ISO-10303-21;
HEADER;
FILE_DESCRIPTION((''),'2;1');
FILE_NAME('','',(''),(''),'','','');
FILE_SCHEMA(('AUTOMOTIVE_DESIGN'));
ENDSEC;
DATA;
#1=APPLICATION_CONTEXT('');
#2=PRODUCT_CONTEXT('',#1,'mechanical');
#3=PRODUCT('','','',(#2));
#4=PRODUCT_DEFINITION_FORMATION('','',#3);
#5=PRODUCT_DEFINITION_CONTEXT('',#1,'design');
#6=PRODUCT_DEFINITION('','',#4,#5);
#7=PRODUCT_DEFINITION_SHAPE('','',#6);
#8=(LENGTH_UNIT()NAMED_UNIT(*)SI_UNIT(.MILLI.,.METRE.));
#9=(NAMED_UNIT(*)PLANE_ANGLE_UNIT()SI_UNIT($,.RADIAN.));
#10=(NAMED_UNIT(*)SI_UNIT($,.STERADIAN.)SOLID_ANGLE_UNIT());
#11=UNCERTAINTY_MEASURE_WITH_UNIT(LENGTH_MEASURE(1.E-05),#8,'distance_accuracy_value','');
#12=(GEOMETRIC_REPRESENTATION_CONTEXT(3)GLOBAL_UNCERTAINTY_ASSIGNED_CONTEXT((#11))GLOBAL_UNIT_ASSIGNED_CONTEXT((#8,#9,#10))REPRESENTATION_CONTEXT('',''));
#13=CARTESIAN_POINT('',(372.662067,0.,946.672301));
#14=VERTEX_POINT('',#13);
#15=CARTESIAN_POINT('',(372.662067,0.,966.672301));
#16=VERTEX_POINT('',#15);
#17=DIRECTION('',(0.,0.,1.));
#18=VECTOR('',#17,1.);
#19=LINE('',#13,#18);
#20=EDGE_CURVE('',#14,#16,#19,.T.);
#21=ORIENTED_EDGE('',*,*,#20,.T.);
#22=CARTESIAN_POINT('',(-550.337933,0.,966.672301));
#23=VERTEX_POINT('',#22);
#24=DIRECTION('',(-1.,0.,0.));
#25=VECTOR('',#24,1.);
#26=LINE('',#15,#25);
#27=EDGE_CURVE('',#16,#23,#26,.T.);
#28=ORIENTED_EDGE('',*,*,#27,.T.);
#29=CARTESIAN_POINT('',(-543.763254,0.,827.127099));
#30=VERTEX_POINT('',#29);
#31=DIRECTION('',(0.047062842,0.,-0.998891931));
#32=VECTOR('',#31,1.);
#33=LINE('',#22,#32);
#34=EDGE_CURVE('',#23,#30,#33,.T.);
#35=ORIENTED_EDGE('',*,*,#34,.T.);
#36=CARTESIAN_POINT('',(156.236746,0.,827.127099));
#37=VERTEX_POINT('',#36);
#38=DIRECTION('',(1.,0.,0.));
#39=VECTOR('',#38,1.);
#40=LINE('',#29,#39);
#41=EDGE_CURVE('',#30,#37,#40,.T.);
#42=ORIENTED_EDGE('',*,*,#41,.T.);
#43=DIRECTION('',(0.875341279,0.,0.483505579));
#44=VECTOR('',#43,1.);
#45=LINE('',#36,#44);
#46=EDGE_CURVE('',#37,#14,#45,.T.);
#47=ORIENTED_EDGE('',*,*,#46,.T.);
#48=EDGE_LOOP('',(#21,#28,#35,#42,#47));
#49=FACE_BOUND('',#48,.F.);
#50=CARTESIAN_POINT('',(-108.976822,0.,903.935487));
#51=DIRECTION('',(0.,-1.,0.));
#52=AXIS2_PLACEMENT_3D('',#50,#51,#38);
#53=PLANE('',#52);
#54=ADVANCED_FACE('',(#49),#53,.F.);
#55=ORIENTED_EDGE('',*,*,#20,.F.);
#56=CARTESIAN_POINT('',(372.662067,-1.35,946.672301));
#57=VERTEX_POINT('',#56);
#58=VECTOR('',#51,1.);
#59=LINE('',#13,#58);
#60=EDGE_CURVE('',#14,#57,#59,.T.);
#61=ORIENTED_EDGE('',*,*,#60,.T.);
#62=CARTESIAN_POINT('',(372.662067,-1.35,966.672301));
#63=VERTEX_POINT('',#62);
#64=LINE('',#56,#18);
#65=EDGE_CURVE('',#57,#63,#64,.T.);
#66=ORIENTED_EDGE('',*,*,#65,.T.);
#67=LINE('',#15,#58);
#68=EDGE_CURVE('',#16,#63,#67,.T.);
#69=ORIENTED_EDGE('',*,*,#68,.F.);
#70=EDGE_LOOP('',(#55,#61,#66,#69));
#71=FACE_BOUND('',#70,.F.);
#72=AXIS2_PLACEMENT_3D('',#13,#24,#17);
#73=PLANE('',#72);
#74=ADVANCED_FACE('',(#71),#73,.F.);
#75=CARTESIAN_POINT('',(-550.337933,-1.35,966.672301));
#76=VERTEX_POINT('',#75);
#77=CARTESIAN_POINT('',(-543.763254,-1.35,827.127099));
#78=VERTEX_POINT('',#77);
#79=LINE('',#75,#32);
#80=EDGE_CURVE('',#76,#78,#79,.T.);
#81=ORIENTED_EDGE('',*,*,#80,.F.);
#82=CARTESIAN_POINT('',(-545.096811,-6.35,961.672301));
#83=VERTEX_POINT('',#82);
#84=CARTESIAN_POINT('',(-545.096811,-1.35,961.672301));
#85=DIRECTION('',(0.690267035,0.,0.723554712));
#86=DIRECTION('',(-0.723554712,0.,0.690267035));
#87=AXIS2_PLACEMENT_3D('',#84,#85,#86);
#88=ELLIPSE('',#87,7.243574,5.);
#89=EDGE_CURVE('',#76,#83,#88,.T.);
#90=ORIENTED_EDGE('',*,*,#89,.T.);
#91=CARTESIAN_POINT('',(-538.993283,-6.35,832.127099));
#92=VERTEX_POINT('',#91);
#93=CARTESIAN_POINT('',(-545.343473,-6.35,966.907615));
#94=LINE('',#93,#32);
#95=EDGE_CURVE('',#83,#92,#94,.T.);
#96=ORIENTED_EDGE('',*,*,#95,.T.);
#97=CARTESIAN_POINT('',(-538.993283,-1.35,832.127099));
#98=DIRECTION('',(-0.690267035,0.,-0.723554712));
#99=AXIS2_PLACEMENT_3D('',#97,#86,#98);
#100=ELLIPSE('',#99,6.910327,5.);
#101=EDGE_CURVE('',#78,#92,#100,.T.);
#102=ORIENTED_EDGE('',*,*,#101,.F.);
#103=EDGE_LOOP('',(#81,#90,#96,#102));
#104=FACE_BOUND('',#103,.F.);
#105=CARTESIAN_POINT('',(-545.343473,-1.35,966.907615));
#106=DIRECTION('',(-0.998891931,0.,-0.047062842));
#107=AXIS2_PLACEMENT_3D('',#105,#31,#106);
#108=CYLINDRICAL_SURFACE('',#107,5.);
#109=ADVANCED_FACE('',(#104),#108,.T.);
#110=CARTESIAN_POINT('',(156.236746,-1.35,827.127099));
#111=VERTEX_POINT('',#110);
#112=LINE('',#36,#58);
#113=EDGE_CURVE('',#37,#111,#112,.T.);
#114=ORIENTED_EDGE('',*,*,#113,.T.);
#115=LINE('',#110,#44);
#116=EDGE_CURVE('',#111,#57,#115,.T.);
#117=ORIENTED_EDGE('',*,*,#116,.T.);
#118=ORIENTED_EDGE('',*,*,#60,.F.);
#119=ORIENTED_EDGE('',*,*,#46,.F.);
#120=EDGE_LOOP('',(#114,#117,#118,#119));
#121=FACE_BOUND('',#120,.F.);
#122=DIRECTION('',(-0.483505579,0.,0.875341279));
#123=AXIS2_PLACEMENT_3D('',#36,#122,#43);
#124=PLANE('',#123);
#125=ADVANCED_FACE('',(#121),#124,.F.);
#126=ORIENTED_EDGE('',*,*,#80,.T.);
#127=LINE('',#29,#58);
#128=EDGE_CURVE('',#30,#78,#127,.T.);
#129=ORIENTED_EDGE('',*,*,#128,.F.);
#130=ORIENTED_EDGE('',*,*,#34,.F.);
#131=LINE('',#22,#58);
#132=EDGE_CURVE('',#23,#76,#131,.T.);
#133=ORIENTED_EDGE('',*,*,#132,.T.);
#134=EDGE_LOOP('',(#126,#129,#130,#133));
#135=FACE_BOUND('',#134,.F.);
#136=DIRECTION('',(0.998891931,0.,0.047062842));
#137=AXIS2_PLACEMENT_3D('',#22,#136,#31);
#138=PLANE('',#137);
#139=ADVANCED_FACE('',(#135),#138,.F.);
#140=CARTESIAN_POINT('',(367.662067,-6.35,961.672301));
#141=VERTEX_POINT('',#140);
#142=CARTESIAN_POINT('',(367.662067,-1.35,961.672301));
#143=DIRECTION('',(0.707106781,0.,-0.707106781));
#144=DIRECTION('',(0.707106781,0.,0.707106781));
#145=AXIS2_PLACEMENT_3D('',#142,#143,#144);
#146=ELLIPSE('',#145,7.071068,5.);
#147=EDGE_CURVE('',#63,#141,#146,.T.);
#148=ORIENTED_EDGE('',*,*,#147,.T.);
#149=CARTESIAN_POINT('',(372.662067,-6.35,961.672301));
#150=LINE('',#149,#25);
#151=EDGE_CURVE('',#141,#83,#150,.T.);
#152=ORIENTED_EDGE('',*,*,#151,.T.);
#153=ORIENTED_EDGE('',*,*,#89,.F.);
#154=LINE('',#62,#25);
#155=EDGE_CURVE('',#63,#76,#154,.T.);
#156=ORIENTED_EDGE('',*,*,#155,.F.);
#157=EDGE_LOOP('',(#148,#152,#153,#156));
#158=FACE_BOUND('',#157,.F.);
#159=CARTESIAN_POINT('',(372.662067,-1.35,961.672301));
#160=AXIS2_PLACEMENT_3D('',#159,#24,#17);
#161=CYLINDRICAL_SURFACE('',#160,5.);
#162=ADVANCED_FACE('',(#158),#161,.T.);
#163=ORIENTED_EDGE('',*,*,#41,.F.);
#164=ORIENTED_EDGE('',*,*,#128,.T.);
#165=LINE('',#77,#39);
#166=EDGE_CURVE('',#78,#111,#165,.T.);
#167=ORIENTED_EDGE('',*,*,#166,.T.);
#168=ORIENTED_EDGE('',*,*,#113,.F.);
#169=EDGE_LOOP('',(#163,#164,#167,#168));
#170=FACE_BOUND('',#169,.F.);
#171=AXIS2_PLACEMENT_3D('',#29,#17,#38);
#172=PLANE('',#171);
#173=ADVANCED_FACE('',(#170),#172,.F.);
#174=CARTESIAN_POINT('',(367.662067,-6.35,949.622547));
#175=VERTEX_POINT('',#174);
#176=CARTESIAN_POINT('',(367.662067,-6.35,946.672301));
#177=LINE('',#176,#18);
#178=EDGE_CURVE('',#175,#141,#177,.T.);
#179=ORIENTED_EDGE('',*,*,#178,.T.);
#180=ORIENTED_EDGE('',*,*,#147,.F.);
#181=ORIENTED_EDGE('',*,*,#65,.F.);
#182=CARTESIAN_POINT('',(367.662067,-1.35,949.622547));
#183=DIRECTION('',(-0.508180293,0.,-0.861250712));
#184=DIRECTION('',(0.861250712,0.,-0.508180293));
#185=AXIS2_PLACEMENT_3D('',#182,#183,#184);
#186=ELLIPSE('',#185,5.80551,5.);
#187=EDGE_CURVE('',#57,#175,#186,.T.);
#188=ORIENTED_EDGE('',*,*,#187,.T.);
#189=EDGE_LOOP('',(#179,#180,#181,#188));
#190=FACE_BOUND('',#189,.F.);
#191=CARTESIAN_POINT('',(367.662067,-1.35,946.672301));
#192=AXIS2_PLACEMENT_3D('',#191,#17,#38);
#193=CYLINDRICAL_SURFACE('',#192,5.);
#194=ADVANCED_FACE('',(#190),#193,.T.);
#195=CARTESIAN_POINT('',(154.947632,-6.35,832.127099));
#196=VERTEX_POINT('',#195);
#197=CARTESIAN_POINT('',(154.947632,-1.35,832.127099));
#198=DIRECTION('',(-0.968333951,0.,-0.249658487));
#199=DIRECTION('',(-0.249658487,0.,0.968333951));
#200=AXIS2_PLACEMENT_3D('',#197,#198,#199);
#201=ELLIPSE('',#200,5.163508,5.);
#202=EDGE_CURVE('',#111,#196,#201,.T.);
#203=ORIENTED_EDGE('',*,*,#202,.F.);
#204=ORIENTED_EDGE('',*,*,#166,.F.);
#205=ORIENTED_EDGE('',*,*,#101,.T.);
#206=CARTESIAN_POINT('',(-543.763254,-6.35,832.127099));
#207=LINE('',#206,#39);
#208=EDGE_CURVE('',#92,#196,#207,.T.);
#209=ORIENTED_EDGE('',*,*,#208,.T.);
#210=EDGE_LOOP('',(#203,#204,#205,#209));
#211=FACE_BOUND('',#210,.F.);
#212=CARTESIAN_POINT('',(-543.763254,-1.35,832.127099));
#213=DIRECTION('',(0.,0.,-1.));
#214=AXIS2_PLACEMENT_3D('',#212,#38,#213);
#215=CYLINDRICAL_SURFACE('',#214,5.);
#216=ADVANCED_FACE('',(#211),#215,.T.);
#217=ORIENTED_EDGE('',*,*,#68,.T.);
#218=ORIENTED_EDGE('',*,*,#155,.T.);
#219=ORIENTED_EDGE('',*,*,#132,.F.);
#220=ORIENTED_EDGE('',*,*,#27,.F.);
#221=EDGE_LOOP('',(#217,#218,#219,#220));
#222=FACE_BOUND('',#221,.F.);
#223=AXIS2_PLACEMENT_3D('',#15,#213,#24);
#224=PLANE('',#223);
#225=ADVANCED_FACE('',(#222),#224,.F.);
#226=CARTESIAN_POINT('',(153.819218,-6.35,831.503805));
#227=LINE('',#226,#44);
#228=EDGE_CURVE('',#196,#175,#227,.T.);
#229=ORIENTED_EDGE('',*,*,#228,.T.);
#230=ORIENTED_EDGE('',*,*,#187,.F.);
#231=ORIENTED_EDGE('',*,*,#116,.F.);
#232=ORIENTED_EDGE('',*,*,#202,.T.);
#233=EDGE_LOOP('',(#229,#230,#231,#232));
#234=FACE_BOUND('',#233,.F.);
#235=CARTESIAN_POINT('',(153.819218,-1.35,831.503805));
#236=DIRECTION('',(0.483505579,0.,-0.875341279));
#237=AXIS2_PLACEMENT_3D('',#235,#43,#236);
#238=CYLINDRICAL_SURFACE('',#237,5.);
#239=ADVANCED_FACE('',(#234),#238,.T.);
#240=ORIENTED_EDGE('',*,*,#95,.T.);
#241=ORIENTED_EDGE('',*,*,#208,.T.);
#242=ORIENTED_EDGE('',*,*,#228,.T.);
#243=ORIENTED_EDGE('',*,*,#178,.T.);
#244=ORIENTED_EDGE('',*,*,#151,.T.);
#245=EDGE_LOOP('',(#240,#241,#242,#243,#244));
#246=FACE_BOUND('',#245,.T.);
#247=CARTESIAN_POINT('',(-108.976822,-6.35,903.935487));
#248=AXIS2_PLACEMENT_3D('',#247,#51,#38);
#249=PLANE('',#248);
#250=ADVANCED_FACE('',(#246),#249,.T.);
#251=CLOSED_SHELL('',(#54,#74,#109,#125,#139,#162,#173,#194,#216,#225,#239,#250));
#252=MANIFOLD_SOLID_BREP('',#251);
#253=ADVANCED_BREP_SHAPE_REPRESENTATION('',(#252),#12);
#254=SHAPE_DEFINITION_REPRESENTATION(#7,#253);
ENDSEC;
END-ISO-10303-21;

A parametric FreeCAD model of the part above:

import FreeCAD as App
import Part
import Sketcher
from FreeCAD import Vector
Q = App.Units.Quantity


def edges_at(feature, points):
    """Names of the edges that pass closest to the given points."""
    edges = feature.Shape.Edges
    near = lambda p: min(range(len(edges)), key=lambda i: edges[i].distToShape(Part.Vertex(*p))[0])
    return sorted({f"Edge{near(p) + 1}" for p in points})


def add_polygon(sketch, points):
    """Adds a closed chain of lines whose ends are joined by coincident constraints."""
    first, n = sketch.GeometryCount, len(points)
    for a, b in zip(points, points[1:] + points[:1]):
        sketch.addGeometry(Part.LineSegment(App.Vector(*a, 0), App.Vector(*b, 0)), False)
    for i in range(n):
        sketch.addConstraint(Sketcher.Constraint("Coincident", first + i, 2, first + (i + 1) % n, 1))

doc = App.newDocument("Part")
params = doc.addObject("Spreadsheet::Sheet", "Params")
for row, (alias, value) in enumerate([
    ("sketch1_width", "923 mm"),
    ("sketch1_width2", "700 mm"),
    ("sketch1_height", "20 mm"),
    ("sketch1_length", "139.699999 mm"),
    ("pad1_length", "6.35 mm"),
    ("fillet_radius", "5 mm"),
], start=1):
    params.set(f"A{row}", alias)
    params.set(f"B{row}", "=" + value)
    params.setAlias(f"B{row}", alias)

body = doc.addObject("PartDesign::Body", "Body")

# Sketch on XZ plane
sketch1 = doc.addObject("Sketcher::SketchObject", "Sketch")
body.addObject(sketch1)
sketch1.AttachmentSupport = (doc.XZ_Plane, [""])
sketch1.MapMode = "FlatFace"
add_polygon(sketch1, [(372.662067, 966.672301), (-550.337933, 966.672301), (-543.763254, 827.127099), (156.236746, 827.127099), (372.662067, 946.672301)])  # lines 0-4
sketch1.addConstraint(Sketcher.Constraint("Horizontal", 0))
sketch1.addConstraint(Sketcher.Constraint("Horizontal", 2))
sketch1.addConstraint(Sketcher.Constraint("Vertical", 4))
sketch1.addConstraint(Sketcher.Constraint("DistanceX", 0, 2, 0, 1, Q("923 mm")))
sketch1.addConstraint(Sketcher.Constraint("DistanceX", 2, 1, 2, 2, Q("700 mm")))
sketch1.addConstraint(Sketcher.Constraint("DistanceY", 4, 1, 4, 2, Q("20 mm")))
sketch1.addConstraint(Sketcher.Constraint("Distance", 1, Q("139.699999 mm")))
sketch1.addConstraint(Sketcher.Constraint("DistanceY", -1, 1, 0, 2, Q("966.672301 mm")))
sketch1.addConstraint(Sketcher.Constraint("DistanceY", -1, 1, 1, 2, Q("827.127099 mm")))
sketch1.addConstraint(Sketcher.Constraint("DistanceX", 0, 2, -1, 1, Q("550.337933 mm")))
sketch1.setExpression("Constraints[8]", "Params.sketch1_width")
sketch1.setExpression("Constraints[9]", "Params.sketch1_width2")
sketch1.setExpression("Constraints[10]", "Params.sketch1_height")
sketch1.setExpression("Constraints[11]", "Params.sketch1_length")
pad1 = doc.addObject("PartDesign::Pad", "Pad")
body.addObject(pad1)
pad1.Profile = sketch1
pad1.setExpression("Length", "Params.pad1_length")
doc.recompute()

fillet = doc.addObject("PartDesign::Fillet", "Fillet")
body.addObject(fillet)
fillet.Base = (pad1, edges_at(pad1, [
    (264.449, -6.35, 886.9),
    (372.662, -6.35, 956.672),
    (-88.838, -6.35, 966.672),
    (-547.051, -6.35, 896.9),
    (-193.763, -6.35, 827.127),
]))
fillet.setExpression("Radius", "Params.fillet_radius")

doc.recompute()
